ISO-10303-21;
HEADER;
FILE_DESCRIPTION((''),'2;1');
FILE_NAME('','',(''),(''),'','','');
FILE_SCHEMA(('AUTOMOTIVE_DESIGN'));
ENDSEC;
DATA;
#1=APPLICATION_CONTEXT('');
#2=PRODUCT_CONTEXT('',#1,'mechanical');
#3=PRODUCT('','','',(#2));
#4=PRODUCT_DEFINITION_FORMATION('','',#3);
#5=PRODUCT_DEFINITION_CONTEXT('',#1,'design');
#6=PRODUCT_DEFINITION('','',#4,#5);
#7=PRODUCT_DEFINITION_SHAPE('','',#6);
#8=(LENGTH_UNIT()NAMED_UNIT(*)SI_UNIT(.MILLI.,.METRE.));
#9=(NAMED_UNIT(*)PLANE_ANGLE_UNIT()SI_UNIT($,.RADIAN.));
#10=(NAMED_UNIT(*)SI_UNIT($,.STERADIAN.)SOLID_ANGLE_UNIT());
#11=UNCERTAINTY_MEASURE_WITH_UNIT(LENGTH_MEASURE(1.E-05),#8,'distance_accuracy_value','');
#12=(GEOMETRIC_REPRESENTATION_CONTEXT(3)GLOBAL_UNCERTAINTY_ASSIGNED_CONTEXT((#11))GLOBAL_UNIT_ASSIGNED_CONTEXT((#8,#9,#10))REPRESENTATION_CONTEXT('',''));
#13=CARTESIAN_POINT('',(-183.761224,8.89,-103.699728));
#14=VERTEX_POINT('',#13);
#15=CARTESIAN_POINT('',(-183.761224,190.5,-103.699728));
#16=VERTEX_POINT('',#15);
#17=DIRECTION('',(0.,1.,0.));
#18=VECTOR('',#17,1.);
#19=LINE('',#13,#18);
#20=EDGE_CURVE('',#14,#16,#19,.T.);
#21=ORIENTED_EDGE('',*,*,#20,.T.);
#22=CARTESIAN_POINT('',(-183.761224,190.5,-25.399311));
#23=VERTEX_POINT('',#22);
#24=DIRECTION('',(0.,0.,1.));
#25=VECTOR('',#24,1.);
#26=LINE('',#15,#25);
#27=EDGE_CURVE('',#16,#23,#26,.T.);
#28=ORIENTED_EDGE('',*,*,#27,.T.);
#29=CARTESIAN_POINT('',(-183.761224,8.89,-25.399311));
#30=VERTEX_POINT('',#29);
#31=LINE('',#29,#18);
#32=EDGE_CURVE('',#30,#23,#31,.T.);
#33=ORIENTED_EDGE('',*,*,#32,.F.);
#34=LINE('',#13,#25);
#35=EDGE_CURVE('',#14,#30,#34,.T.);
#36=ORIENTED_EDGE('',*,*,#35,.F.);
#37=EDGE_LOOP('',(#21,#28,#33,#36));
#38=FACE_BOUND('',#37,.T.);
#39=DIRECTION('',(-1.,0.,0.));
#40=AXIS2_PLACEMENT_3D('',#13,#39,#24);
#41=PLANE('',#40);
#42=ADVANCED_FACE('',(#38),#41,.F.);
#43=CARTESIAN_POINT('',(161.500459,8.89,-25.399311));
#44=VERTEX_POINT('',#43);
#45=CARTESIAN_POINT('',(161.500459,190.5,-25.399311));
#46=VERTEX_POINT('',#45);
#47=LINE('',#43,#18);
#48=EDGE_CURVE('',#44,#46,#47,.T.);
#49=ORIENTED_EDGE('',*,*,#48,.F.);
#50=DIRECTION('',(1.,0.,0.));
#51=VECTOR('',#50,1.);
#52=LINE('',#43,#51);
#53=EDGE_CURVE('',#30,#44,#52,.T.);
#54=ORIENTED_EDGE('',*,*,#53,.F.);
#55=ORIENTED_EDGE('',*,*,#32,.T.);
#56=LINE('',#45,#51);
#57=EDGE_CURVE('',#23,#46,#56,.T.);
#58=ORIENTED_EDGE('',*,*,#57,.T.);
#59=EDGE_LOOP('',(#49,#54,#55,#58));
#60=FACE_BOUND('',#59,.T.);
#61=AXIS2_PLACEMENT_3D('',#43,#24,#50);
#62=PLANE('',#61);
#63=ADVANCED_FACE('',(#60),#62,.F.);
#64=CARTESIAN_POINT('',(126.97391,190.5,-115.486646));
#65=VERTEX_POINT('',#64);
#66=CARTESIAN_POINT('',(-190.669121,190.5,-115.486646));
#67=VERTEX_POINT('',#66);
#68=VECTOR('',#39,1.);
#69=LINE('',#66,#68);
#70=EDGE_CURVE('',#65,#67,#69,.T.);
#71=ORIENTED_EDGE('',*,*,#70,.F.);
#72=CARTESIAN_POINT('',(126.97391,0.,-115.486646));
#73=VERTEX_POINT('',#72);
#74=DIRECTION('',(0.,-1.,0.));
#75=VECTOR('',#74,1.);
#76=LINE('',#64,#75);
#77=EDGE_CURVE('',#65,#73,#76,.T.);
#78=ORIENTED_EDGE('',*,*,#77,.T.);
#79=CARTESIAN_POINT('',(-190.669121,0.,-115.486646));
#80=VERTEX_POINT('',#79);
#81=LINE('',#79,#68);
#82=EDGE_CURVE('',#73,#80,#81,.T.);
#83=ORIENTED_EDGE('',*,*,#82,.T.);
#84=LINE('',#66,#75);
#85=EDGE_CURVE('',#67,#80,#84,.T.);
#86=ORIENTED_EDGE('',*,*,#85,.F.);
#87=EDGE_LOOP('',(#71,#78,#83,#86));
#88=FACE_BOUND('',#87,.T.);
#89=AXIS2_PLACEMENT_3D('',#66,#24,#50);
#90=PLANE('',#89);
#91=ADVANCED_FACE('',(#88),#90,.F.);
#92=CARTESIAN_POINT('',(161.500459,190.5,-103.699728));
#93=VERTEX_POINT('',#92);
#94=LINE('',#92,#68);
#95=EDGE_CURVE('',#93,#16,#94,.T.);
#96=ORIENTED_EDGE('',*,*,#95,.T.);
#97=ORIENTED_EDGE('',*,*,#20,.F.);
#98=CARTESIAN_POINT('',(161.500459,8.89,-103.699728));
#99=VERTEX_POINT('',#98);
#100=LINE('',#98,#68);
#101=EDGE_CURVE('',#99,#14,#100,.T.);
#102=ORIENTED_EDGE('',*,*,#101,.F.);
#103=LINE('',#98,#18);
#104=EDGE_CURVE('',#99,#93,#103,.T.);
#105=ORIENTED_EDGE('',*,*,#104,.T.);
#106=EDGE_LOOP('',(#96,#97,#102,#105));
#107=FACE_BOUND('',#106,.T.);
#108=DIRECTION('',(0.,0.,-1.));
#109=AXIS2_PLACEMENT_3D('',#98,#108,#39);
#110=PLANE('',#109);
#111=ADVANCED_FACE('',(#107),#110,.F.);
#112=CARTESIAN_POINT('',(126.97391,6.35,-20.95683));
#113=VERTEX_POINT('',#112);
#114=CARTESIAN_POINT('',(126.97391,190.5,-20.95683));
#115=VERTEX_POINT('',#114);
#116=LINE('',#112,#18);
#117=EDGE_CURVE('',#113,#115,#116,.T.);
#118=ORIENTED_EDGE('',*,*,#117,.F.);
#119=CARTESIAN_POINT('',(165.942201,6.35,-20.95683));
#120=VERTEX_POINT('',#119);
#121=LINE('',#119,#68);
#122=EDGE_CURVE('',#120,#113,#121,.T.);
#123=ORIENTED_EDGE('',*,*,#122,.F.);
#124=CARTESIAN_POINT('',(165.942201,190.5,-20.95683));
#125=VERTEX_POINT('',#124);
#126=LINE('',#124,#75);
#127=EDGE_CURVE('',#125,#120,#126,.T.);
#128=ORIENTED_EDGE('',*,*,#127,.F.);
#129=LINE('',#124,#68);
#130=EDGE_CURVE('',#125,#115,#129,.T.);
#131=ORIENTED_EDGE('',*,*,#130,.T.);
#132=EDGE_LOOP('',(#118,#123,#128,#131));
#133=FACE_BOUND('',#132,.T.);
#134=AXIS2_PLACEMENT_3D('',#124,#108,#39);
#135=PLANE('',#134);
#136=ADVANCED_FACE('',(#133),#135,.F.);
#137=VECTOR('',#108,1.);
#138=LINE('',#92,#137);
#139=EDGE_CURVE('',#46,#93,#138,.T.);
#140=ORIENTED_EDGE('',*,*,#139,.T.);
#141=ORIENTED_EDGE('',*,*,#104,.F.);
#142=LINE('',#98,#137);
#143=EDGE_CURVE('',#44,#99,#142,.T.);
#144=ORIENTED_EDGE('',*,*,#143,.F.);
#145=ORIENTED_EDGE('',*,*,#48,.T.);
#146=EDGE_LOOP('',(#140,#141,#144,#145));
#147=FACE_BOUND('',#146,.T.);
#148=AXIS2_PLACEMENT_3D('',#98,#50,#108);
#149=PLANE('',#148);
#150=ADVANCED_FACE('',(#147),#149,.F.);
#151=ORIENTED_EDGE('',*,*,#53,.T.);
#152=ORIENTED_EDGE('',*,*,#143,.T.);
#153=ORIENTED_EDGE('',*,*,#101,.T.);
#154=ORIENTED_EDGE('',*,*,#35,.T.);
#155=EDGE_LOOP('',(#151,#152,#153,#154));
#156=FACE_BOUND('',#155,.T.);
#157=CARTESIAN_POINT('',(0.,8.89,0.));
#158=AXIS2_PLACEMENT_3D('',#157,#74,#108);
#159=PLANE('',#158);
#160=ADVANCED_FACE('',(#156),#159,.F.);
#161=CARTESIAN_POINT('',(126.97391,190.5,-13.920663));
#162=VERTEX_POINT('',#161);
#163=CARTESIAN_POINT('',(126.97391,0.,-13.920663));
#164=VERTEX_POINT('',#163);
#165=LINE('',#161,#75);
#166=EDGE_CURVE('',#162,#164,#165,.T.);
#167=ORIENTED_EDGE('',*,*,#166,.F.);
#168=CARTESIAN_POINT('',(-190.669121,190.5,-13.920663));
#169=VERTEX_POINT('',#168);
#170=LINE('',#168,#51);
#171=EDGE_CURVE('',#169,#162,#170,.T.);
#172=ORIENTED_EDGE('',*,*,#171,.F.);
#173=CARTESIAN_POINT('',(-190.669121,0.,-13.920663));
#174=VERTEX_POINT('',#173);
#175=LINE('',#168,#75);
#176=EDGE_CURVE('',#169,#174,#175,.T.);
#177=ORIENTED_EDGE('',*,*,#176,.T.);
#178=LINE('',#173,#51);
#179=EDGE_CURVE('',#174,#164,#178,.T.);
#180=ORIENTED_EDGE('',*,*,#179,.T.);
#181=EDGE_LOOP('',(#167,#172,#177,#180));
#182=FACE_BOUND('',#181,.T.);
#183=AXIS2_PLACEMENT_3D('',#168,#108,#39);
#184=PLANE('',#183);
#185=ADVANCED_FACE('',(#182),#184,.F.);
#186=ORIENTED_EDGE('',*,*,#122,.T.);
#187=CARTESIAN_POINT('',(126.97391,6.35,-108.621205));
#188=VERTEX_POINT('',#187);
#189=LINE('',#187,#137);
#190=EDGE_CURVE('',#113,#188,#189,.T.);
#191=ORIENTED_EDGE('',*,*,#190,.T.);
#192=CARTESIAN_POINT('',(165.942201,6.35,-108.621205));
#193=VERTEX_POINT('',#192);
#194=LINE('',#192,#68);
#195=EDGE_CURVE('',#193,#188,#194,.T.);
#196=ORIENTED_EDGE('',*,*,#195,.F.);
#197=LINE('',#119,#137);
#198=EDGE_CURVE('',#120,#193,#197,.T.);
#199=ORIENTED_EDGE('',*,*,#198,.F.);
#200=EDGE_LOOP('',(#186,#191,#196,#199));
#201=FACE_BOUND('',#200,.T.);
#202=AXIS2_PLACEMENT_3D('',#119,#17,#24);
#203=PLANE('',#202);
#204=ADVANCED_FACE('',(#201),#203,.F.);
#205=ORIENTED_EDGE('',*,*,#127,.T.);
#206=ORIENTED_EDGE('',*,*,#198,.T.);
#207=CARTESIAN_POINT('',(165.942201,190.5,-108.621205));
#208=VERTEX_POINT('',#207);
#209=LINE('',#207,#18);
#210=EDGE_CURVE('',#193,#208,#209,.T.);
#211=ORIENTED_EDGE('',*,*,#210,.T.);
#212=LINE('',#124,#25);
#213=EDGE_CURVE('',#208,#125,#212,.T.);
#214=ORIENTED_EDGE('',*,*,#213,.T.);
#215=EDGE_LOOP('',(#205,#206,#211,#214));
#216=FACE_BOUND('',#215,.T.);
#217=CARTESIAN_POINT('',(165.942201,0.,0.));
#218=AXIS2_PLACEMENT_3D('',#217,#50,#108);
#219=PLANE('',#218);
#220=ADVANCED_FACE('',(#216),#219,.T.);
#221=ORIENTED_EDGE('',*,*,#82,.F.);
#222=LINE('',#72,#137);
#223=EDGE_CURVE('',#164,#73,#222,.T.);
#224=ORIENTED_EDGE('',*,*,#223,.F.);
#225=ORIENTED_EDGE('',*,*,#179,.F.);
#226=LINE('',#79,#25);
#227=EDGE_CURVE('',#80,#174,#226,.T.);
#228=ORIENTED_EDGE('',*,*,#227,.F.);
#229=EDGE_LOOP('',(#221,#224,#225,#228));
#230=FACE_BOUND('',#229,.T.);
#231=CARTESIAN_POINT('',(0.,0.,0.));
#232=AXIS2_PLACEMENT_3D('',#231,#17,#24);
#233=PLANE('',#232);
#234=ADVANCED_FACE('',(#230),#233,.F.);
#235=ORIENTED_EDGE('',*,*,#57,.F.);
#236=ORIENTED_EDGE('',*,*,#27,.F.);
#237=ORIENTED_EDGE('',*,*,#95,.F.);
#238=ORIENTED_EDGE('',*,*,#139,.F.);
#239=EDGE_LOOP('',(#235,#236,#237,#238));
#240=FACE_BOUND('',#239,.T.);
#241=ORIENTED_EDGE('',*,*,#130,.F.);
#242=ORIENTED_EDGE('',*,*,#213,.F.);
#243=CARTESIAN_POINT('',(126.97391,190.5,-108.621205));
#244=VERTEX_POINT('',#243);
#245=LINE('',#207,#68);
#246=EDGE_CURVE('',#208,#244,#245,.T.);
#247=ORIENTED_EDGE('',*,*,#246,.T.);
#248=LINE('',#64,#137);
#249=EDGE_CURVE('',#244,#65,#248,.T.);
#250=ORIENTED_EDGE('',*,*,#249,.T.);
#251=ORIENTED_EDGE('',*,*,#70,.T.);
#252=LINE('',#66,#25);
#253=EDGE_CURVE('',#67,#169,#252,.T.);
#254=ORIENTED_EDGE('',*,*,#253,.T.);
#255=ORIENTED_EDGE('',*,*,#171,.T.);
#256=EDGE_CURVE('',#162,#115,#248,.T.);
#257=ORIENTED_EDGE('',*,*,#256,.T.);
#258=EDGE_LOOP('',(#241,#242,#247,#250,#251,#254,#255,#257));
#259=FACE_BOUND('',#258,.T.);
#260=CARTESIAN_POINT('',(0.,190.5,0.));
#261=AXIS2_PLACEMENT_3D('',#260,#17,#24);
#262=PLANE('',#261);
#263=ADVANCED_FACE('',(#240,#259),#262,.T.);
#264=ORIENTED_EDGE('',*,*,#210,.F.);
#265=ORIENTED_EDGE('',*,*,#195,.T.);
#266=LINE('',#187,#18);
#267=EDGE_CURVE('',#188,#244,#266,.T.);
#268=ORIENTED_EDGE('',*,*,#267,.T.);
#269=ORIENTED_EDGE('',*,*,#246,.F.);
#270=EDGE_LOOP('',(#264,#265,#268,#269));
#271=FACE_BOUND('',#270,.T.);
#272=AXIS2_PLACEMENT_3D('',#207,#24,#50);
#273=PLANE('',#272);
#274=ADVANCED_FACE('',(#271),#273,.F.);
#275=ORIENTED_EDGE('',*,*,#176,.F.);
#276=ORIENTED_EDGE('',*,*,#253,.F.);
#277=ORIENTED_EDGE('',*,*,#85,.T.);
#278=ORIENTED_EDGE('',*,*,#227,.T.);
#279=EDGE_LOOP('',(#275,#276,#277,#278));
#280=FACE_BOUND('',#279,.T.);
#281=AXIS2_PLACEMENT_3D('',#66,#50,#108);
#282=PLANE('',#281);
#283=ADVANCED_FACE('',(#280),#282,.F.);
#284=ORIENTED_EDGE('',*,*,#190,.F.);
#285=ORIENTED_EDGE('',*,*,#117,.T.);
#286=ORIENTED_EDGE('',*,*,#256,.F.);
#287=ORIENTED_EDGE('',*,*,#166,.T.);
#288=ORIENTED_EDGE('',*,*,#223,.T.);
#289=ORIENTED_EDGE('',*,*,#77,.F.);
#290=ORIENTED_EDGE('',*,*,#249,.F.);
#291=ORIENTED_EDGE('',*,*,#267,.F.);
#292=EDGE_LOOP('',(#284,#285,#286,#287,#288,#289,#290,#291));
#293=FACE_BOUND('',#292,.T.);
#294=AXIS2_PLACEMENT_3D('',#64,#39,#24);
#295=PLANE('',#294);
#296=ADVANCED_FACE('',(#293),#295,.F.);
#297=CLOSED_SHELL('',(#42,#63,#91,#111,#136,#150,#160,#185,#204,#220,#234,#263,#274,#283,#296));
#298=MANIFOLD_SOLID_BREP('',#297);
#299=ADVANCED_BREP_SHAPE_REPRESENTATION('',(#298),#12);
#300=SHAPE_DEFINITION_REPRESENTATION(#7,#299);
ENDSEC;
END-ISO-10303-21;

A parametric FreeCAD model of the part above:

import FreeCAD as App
import Part
import Sketcher
Q = App.Units.Quantity

doc = App.newDocument("Part")
body = doc.addObject("PartDesign::Body", "Body")

# Sketch on XZ plane
sketch1 = body.newObject("Sketcher::SketchObject", "Sketch")
sketch1.AttachmentSupport = (doc.getObject("XZ_Plane"), [""])
sketch1.MapMode = "FlatFace"
sketch1.addGeometry([
    Part.LineSegment(App.Vector(-191, -115, 0), App.Vector(-191, -14, 0)),
    Part.LineSegment(App.Vector(-191, -14, 0), App.Vector(127, -14, 0)),
    Part.LineSegment(App.Vector(127, -14, 0), App.Vector(127, -115, 0)),
    Part.LineSegment(App.Vector(127, -115, 0), App.Vector(-191, -115, 0)),
], False)
sketch1.addConstraint([
    Sketcher.Constraint("Coincident", 0, 2, 1, 1),
    Sketcher.Constraint("Coincident", 1, 2, 2, 1),
    Sketcher.Constraint("Coincident", 2, 2, 3, 1),
    Sketcher.Constraint("Coincident", 3, 2, 0, 1),
    Sketcher.Constraint("Vertical", 0),
    Sketcher.Constraint("Horizontal", 1),
    Sketcher.Constraint("Vertical", 2),
    Sketcher.Constraint("Horizontal", 3),
    Sketcher.Constraint("DistanceX", 1, 1, 1, 2, Q("317.643031 mm")),
    Sketcher.Constraint("DistanceY", 0, 1, 0, 2, Q("101.565983 mm")),
    Sketcher.Constraint("DistanceX", 0, 2, -1, 1, Q("190.669121 mm")),
    Sketcher.Constraint("DistanceY", 0, 2, -1, 1, Q("13.920663 mm")),
])
pad1 = body.newObject("PartDesign::Pad", "Pad")
pad1.Profile = sketch1
pad1.Length = Q("7.5 in")
pad1.Reversed = True

# Sketch on XZ plane
sketch2 = body.newObject("Sketcher::SketchObject", "Sketch001")
sketch2.AttachmentSupport = (doc.getObject("XZ_Plane"), [""])
sketch2.MapMode = "FlatFace"
sketch2.AttachmentOffset = App.Placement(App.Vector(0, 0, -7.5 * 25.4), App.Rotation())
sketch2.addGeometry([
    Part.LineSegment(App.Vector(-183, -109, 0), App.Vector(-183, -21, 0)),
    Part.LineSegment(App.Vector(-183, -21, 0), App.Vector(127, -21, 0)),
    Part.LineSegment(App.Vector(127, -21, 0), App.Vector(127, -109, 0)),
    Part.LineSegment(App.Vector(127, -109, 0), App.Vector(-183, -109, 0)),
], False)
sketch2.addConstraint([
    Sketcher.Constraint("Coincident", 0, 2, 1, 1),
    Sketcher.Constraint("Coincident", 1, 2, 2, 1),
    Sketcher.Constraint("Coincident", 2, 2, 3, 1),
    Sketcher.Constraint("Coincident", 3, 2, 0, 1),
    Sketcher.Constraint("Vertical", 0),
    Sketcher.Constraint("Horizontal", 1),
    Sketcher.Constraint("Vertical", 2),
    Sketcher.Constraint("Horizontal", 3),
    Sketcher.Constraint("DistanceX", 1, 1, 1, 2, Q("310.281709 mm")),
    Sketcher.Constraint("DistanceX", 0, 2, -1, 1, Q("183.307799 mm")),
    Sketcher.Constraint("DistanceY", 0, 1, 0, 2, Q("87.664375 mm")),
    Sketcher.Constraint("DistanceY", 0, 2, -1, 1, Q("20.95683 mm")),
])
pocket1 = body.newObject("PartDesign::Pocket", "Pocket")
pocket1.Profile = sketch2
pocket1.Length = Q("7.25 in")
pocket1.Reversed = True

# Sketch on YZ plane
sketch3 = body.newObject("Sketcher::SketchObject", "Sketch002")
sketch3.AttachmentSupport = (doc.getObject("YZ_Plane"), [""])
sketch3.MapMode = "FlatFace"
sketch3.AttachmentOffset = App.Placement(App.Vector(0, 0, -183.307799), App.Rotation())
sketch3.addGeometry([
    Part.LineSegment(App.Vector(190, -21, 0), App.Vector(6, -21, 0)),
    Part.LineSegment(App.Vector(6, -21, 0), App.Vector(6, -109, 0)),
    Part.LineSegment(App.Vector(6, -109, 0), App.Vector(190, -109, 0)),
    Part.LineSegment(App.Vector(190, -109, 0), App.Vector(190, -21, 0)),
], False)
sketch3.addConstraint([
    Sketcher.Constraint("Coincident", 0, 2, 1, 1),
    Sketcher.Constraint("Coincident", 1, 2, 2, 1),
    Sketcher.Constraint("Coincident", 2, 2, 3, 1),
    Sketcher.Constraint("Coincident", 3, 2, 0, 1),
    Sketcher.Constraint("Horizontal", 0),
    Sketcher.Constraint("Vertical", 1),
    Sketcher.Constraint("Horizontal", 2),
    Sketcher.Constraint("Vertical", 3),
    Sketcher.Constraint("DistanceX", 0, 2, 0, 1, Q("7.25 in")),
    Sketcher.Constraint("DistanceX", -1, 1, 2, 2, Q("7.5 in")),
    Sketcher.Constraint("DistanceY", 1, 2, 1, 1, Q("87.664375 mm")),
    Sketcher.Constraint("DistanceY", 0, 2, -1, 1, Q("20.95683 mm")),
])
pad2 = body.newObject("PartDesign::Pad", "Pad001")
pad2.Profile = sketch3
pad2.Length = Q("13.75 in")

# Sketch on XZ plane
sketch4 = body.newObject("Sketcher::SketchObject", "Sketch003")
sketch4.AttachmentSupport = (doc.getObject("XZ_Plane"), [""])
sketch4.MapMode = "FlatFace"
sketch4.AttachmentOffset = App.Placement(App.Vector(0, 0, -7.5 * 25.4), App.Rotation())
sketch4.addGeometry([
    Part.LineSegment(App.Vector(-184, -104, 0), App.Vector(-184, -25, 0)),
    Part.LineSegment(App.Vector(-184, -25, 0), App.Vector(162, -25, 0)),
    Part.LineSegment(App.Vector(162, -25, 0), App.Vector(162, -104, 0)),
    Part.LineSegment(App.Vector(162, -104, 0), App.Vector(-184, -104, 0)),
], False)
sketch4.addConstraint([
    Sketcher.Constraint("Coincident", 0, 2, 1, 1),
    Sketcher.Constraint("Coincident", 1, 2, 2, 1),
    Sketcher.Constraint("Coincident", 2, 2, 3, 1),
    Sketcher.Constraint("Coincident", 3, 2, 0, 1),
    Sketcher.Constraint("Vertical", 0),
    Sketcher.Constraint("Horizontal", 1),
    Sketcher.Constraint("Vertical", 2),
    Sketcher.Constraint("Horizontal", 3),
    Sketcher.Constraint("DistanceX", 1, 1, 1, 2, Q("345.261684 mm")),
    Sketcher.Constraint("DistanceY", 0, 1, 0, 2, Q("78.300418 mm")),
    Sketcher.Constraint("DistanceY", 0, 2, -1, 1, Q("25.399311 mm")),
    Sketcher.Constraint("DistanceX", -1, 1, 1, 2, Q("161.500459 mm")),
])
pocket2 = body.newObject("PartDesign::Pocket", "Pocket001")
pocket2.Profile = sketch4
pocket2.Length = Q("7.15 in")
pocket2.Reversed = True

doc.recompute()
